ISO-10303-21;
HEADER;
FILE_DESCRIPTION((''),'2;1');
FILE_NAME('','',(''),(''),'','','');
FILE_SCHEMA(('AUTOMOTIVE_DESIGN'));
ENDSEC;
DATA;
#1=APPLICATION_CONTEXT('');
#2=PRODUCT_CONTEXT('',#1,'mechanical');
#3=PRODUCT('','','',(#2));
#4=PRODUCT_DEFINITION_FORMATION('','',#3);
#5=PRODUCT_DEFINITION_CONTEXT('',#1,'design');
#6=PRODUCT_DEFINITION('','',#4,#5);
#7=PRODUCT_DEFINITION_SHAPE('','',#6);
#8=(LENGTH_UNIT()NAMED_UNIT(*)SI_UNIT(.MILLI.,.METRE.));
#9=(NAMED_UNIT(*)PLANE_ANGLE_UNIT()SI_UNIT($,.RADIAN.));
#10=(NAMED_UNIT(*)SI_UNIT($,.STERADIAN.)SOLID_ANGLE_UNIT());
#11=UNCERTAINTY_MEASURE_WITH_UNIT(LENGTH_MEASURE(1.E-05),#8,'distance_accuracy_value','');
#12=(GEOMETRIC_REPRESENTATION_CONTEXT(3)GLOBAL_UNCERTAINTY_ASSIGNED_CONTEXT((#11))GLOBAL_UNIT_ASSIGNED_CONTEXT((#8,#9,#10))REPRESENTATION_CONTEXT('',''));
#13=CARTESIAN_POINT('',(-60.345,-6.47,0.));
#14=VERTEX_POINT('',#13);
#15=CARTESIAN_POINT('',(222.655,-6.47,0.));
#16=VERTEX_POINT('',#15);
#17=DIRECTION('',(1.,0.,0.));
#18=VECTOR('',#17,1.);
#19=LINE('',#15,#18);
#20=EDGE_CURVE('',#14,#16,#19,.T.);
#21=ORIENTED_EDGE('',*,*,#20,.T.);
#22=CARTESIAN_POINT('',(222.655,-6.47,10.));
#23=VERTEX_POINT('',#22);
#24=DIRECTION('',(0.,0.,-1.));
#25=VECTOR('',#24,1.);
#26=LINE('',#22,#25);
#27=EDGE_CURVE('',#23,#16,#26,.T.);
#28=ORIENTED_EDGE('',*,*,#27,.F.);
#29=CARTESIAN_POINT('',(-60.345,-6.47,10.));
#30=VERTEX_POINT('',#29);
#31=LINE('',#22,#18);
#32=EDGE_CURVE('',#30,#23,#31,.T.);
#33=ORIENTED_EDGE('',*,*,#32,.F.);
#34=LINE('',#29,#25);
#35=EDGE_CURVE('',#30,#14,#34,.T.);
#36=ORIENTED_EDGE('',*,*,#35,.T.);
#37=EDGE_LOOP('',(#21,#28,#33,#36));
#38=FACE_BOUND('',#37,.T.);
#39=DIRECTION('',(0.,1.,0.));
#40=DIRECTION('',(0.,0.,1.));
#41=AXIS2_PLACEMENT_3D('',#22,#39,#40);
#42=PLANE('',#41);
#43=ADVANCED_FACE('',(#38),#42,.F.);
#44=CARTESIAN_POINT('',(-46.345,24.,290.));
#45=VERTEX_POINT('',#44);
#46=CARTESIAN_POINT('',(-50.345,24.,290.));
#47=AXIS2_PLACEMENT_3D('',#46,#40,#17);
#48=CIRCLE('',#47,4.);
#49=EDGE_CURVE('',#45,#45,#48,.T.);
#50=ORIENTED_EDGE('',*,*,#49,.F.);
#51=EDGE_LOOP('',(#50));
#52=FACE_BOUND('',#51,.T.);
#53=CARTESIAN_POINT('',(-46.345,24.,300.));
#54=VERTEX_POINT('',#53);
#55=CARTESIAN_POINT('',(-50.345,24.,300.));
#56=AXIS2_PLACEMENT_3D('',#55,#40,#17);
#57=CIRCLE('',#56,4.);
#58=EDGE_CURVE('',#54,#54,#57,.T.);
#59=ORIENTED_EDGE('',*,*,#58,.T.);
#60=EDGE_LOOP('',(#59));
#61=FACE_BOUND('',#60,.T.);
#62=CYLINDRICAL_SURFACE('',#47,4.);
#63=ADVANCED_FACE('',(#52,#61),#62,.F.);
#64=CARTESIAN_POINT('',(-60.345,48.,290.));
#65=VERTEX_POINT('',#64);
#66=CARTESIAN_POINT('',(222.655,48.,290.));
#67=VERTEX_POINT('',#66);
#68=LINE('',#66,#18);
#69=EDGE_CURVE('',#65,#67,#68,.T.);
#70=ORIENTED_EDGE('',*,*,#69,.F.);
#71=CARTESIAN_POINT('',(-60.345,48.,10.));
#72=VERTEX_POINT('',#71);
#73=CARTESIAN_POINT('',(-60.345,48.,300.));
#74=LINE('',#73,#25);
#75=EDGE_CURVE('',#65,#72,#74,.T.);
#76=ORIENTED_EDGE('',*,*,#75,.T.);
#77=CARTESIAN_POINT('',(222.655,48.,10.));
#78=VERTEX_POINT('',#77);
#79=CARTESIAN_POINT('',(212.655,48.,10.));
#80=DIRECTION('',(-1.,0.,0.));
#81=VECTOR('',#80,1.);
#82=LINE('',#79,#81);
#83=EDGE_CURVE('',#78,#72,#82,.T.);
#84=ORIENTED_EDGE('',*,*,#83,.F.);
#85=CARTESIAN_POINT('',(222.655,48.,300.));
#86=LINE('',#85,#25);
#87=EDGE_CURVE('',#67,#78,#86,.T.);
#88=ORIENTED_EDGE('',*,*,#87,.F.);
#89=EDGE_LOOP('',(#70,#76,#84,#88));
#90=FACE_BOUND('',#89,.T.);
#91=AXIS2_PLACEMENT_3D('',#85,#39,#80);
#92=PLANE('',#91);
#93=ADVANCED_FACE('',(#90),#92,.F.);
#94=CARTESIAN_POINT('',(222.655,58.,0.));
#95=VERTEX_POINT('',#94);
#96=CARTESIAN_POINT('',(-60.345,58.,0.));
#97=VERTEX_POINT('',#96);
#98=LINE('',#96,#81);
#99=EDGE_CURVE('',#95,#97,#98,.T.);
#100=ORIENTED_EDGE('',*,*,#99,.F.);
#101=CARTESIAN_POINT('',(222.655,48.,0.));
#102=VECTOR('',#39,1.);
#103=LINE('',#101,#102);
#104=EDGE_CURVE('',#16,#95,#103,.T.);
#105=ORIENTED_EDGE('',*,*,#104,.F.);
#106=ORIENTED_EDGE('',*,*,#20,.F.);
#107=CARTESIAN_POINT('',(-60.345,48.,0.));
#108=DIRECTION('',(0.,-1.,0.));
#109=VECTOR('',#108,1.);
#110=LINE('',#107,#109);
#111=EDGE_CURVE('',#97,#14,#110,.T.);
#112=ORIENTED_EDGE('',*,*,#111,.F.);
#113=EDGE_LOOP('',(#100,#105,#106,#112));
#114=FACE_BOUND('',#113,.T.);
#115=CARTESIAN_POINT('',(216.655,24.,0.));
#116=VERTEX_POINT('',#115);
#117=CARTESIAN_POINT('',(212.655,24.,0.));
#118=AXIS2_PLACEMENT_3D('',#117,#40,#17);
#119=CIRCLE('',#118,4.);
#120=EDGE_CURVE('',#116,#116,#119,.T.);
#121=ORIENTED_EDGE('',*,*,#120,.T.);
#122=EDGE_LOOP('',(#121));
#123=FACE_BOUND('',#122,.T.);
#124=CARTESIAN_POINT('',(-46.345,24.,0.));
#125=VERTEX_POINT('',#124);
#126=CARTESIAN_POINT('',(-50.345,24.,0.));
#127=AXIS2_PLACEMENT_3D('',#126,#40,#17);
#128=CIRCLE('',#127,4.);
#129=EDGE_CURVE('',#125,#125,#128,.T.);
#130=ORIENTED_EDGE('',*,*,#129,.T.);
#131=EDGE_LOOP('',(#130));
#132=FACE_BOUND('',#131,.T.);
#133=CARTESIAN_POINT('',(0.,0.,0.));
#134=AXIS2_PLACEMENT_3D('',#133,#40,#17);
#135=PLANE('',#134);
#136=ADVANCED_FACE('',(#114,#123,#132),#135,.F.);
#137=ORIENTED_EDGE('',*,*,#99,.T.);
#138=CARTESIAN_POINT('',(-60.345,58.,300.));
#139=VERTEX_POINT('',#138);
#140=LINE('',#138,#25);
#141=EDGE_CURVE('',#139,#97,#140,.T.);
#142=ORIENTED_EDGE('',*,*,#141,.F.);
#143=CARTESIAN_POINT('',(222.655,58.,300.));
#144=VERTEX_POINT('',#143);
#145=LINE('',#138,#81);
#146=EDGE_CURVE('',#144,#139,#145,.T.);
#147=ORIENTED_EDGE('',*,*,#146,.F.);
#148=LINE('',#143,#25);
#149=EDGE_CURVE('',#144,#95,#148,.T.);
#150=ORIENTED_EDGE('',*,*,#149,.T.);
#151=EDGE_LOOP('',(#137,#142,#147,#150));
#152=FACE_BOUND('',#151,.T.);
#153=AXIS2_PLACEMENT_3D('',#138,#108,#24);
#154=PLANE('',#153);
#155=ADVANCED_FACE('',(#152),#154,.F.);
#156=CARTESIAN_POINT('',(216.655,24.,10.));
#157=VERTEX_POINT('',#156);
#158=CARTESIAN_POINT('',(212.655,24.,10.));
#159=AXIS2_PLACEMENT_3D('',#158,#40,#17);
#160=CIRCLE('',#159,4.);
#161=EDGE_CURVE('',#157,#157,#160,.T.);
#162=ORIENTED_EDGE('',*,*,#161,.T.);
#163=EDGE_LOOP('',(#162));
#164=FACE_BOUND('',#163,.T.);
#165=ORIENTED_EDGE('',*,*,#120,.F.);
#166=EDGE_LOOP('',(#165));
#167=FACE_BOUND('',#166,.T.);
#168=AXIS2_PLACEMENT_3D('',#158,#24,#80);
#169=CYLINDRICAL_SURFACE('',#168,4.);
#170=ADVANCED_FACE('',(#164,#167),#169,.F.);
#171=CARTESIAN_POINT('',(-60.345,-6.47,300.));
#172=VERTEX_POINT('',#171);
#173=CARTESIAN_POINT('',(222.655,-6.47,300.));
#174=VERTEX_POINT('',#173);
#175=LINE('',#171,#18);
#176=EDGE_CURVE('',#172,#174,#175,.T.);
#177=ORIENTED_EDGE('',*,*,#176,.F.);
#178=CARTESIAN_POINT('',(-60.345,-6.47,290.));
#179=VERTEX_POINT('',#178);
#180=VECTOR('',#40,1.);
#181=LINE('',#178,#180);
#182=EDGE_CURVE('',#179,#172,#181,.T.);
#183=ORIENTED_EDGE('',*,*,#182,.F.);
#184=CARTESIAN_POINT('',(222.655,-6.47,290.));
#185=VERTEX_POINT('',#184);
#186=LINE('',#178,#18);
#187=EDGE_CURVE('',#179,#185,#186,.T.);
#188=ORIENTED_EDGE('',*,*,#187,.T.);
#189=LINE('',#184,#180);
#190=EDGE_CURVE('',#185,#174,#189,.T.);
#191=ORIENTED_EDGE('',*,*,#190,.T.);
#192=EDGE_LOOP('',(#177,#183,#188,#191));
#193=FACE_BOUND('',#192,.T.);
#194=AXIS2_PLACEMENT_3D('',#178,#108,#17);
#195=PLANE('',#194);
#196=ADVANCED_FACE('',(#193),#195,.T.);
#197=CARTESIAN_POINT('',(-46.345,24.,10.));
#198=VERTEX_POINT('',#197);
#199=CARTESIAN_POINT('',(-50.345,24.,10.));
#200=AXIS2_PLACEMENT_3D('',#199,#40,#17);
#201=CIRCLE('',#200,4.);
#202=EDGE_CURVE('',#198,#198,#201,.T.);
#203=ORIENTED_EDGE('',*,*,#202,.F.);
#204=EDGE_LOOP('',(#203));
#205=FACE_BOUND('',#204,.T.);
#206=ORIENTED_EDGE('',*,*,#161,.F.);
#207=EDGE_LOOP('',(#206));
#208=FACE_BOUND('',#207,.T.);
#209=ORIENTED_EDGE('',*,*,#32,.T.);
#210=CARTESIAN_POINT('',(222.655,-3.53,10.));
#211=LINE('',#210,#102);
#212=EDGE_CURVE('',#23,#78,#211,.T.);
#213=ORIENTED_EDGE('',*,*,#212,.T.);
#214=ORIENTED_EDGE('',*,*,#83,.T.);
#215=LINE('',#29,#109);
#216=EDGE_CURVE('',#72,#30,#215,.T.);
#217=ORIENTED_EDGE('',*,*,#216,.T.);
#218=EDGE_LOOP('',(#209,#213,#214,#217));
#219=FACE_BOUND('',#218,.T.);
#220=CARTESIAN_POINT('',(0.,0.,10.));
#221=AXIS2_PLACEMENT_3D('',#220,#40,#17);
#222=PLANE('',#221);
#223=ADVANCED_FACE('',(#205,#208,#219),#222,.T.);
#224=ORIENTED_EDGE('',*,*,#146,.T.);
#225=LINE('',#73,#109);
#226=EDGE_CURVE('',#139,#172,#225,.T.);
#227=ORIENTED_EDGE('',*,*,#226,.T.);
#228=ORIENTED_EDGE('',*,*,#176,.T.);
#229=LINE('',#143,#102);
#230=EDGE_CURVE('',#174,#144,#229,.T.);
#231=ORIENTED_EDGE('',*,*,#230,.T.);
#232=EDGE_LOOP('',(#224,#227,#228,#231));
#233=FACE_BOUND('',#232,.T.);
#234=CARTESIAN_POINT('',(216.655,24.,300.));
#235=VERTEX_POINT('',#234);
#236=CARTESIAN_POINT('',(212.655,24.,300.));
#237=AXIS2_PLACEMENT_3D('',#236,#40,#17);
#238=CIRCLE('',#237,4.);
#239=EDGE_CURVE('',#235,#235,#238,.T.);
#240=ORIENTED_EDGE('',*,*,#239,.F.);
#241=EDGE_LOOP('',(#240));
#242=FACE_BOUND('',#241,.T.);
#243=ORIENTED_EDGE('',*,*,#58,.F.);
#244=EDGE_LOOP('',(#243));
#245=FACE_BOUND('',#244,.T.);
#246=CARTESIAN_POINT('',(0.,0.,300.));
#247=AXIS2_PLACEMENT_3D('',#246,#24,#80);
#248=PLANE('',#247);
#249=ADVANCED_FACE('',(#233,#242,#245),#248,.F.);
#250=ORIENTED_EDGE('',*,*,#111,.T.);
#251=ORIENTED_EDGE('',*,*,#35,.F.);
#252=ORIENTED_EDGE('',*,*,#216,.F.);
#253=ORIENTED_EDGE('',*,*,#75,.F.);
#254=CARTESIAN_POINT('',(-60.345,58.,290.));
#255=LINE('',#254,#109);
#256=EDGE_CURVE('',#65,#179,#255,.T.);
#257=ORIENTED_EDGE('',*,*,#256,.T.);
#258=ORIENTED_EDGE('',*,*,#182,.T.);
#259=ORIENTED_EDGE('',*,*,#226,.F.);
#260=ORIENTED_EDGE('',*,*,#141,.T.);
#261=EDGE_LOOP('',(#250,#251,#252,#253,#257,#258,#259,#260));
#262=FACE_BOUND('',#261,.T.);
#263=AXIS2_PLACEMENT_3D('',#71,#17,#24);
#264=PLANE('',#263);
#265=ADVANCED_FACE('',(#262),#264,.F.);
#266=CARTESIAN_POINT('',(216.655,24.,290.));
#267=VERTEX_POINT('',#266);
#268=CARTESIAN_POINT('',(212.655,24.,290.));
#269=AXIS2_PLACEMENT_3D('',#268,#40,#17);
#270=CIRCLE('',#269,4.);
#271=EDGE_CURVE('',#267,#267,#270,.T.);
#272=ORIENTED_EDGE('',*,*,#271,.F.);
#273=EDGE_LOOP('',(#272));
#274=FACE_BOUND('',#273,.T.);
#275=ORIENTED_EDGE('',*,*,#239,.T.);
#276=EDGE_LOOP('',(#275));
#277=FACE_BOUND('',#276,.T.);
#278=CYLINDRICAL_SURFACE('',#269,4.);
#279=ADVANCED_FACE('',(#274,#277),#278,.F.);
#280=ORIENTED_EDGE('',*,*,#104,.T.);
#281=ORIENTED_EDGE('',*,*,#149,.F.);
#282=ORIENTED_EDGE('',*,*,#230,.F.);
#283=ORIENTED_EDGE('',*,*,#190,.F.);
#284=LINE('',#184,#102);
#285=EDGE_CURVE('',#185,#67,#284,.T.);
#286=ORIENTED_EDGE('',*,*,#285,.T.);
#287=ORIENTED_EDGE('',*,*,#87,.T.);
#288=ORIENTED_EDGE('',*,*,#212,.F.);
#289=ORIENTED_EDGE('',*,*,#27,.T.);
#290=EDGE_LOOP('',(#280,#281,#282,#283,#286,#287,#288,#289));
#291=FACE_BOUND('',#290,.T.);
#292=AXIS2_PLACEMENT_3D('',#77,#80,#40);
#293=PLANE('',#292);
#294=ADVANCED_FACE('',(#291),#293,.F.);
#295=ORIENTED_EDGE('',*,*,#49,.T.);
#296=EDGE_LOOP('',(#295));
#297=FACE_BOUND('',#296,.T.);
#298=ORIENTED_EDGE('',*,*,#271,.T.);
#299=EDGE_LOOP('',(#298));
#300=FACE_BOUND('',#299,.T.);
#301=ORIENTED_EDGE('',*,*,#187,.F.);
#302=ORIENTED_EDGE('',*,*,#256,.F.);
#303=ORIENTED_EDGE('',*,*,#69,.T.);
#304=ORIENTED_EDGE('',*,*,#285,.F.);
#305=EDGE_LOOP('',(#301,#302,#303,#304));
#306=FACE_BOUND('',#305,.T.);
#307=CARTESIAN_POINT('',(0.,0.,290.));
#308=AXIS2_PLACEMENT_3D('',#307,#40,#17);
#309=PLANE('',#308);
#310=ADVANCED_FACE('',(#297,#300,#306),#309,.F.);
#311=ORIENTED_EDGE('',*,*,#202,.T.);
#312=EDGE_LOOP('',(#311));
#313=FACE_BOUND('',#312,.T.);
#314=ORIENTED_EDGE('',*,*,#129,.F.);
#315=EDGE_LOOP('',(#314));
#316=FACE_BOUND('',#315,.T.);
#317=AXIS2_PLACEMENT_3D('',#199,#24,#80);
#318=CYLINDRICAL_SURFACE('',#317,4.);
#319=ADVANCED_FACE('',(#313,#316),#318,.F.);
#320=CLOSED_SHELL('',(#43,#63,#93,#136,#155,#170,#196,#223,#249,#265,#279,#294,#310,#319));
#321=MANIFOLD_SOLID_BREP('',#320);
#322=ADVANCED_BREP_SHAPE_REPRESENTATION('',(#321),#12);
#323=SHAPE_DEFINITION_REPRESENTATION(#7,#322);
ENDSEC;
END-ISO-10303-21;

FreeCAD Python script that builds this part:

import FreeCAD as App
import Part
import Sketcher
Q = App.Units.Quantity

doc = App.newDocument("Part")
params = doc.addObject("Spreadsheet::Sheet", "Params")
for row, (alias, value) in enumerate([
    ("sketch1_diameter", "8 mm"),
    ("sketch1_width", "283 mm"),
    ("sketch1_height", "54.47 mm"),
    ("pad1_length", "10 mm"),
    ("sketch2_width", "283 mm"),
    ("sketch2_height", "10 mm"),
    ("pad2_length", "300 mm"),
    ("sketch3_diameter", "8 mm"),
    ("sketch3_width", "283 mm"),
    ("sketch3_height", "64.47 mm"),
    ("pad3_length", "10 mm"),
], start=1):
    params.set(f"A{row}", alias)
    params.set(f"B{row}", "=" + value)
    params.setAlias(f"B{row}", alias)

body = doc.addObject("PartDesign::Body", "Body")

sketch1 = doc.addObject("Sketcher::SketchObject", "Sketch")
body.addObject(sketch1)
sketch1.AttachmentSupport = (doc.XY_Plane, [""])
sketch1.MapMode = "FlatFace"
sketch1.addGeometry(Part.LineSegment(App.Vector(-60.3, 48, 0), App.Vector(-60.3, -6.5, 0)), False)
sketch1.addGeometry(Part.LineSegment(App.Vector(-60.3, -6.5, 0), App.Vector(222.7, -6.5, 0)), False)
sketch1.addGeometry(Part.LineSegment(App.Vector(222.7, -6.5, 0), App.Vector(222.7, 48, 0)), False)
sketch1.addGeometry(Part.LineSegment(App.Vector(222.7, 48, 0), App.Vector(-60.3, 48, 0)), False)
sketch1.addGeometry(Part.Circle(App.Vector(-50.3, 24, 0), App.Vector(0, 0, 1), 4), False)
sketch1.addGeometry(Part.Circle(App.Vector(212.7, 24, 0), App.Vector(0, 0, 1), 4), False)
sketch1.addConstraint(Sketcher.Constraint("Coincident", 0, 2, 1, 1))
sketch1.addConstraint(Sketcher.Constraint("Coincident", 1, 2, 2, 1))
sketch1.addConstraint(Sketcher.Constraint("Coincident", 2, 2, 3, 1))
sketch1.addConstraint(Sketcher.Constraint("Coincident", 3, 2, 0, 1))
sketch1.addConstraint(Sketcher.Constraint("Vertical", 0))
sketch1.addConstraint(Sketcher.Constraint("Horizontal", 1))
sketch1.addConstraint(Sketcher.Constraint("Vertical", 2))
sketch1.addConstraint(Sketcher.Constraint("Horizontal", 3))
sketch1.addConstraint(Sketcher.Constraint("Equal", 4, 5))
sketch1.addConstraint(Sketcher.Constraint("Horizontal", 4, 3, 5, 3))
sketch1.addConstraint(Sketcher.Constraint("Diameter", 4, Q("8 mm")))
sketch1.addConstraint(Sketcher.Constraint("DistanceX", 1, 1, 1, 2, Q("283 mm")))
sketch1.addConstraint(Sketcher.Constraint("DistanceY", -1, 1, 4, 3, Q("24 mm")))
sketch1.addConstraint(Sketcher.Constraint("DistanceY", -1, 1, 2, 2, Q("48 mm")))
sketch1.addConstraint(Sketcher.Constraint("DistanceX", 4, 3, 5, 3, Q("263 mm")))
sketch1.addConstraint(Sketcher.Constraint("DistanceX", 0, 2, 4, 3, Q("10 mm")))
sketch1.addConstraint(Sketcher.Constraint("DistanceY", 0, 2, 0, 1, Q("54.47 mm")))
sketch1.addConstraint(Sketcher.Constraint("DistanceX", 4, 3, -1, 1, Q("50.345 mm")))
sketch1.setExpression("Constraints[10]", "Params.sketch1_diameter")
sketch1.setExpression("Constraints[11]", "Params.sketch1_width")
sketch1.setExpression("Constraints[16]", "Params.sketch1_height")
pad1 = doc.addObject("PartDesign::Pad", "Pad")
body.addObject(pad1)
pad1.Profile = sketch1
pad1.setExpression("Length", "Params.pad1_length")

sketch2 = doc.addObject("Sketcher::SketchObject", "Sketch001")
body.addObject(sketch2)
sketch2.AttachmentSupport = (doc.XY_Plane, [""])
sketch2.MapMode = "FlatFace"
sketch2.addGeometry(Part.LineSegment(App.Vector(-60, 58, 0), App.Vector(-60, 48, 0)), False)
sketch2.addGeometry(Part.LineSegment(App.Vector(-60, 48, 0), App.Vector(223, 48, 0)), False)
sketch2.addGeometry(Part.LineSegment(App.Vector(223, 48, 0), App.Vector(223, 58, 0)), False)
sketch2.addGeometry(Part.LineSegment(App.Vector(223, 58, 0), App.Vector(-60, 58, 0)), False)
sketch2.addConstraint(Sketcher.Constraint("Coincident", 0, 2, 1, 1))
sketch2.addConstraint(Sketcher.Constraint("Coincident", 1, 2, 2, 1))
sketch2.addConstraint(Sketcher.Constraint("Coincident", 2, 2, 3, 1))
sketch2.addConstraint(Sketcher.Constraint("Coincident", 3, 2, 0, 1))
sketch2.addConstraint(Sketcher.Constraint("Vertical", 0))
sketch2.addConstraint(Sketcher.Constraint("Horizontal", 1))
sketch2.addConstraint(Sketcher.Constraint("Vertical", 2))
sketch2.addConstraint(Sketcher.Constraint("Horizontal", 3))
sketch2.addConstraint(Sketcher.Constraint("DistanceX", 1, 1, 1, 2, Q("283 mm")))
sketch2.addConstraint(Sketcher.Constraint("DistanceY", 0, 2, 0, 1, Q("10 mm")))
sketch2.addConstraint(Sketcher.Constraint("DistanceY", -1, 1, 0, 2, Q("48 mm")))
sketch2.addConstraint(Sketcher.Constraint("DistanceX", 0, 2, -1, 1, Q("60.345 mm")))
sketch2.setExpression("Constraints[8]", "Params.sketch2_width")
sketch2.setExpression("Constraints[9]", "Params.sketch2_height")
pad2 = doc.addObject("PartDesign::Pad", "Pad001")
body.addObject(pad2)
pad2.Profile = sketch2
pad2.setExpression("Length", "Params.pad2_length")

sketch3 = doc.addObject("Sketcher::SketchObject", "Sketch002")
body.addObject(sketch3)
sketch3.AttachmentSupport = (doc.XY_Plane, [""])
sketch3.MapMode = "FlatFace"
sketch3.AttachmentOffset = App.Placement(App.Vector(0, 0, 300), App.Rotation())
sketch3.addGeometry(Part.LineSegment(App.Vector(-60.3, 58, 0), App.Vector(-60.3, -6.5, 0)), False)
sketch3.addGeometry(Part.LineSegment(App.Vector(-60.3, -6.5, 0), App.Vector(222.7, -6.5, 0)), False)
sketch3.addGeometry(Part.LineSegment(App.Vector(222.7, -6.5, 0), App.Vector(222.7, 58, 0)), False)
sketch3.addGeometry(Part.LineSegment(App.Vector(222.7, 58, 0), App.Vector(-60.3, 58, 0)), False)
sketch3.addGeometry(Part.Circle(App.Vector(-50.3, 24, 0), App.Vector(0, 0, 1), 4), False)
sketch3.addGeometry(Part.Circle(App.Vector(212.7, 24, 0), App.Vector(0, 0, 1), 4), False)
sketch3.addConstraint(Sketcher.Constraint("Coincident", 0, 2, 1, 1))
sketch3.addConstraint(Sketcher.Constraint("Coincident", 1, 2, 2, 1))
sketch3.addConstraint(Sketcher.Constraint("Coincident", 2, 2, 3, 1))
sketch3.addConstraint(Sketcher.Constraint("Coincident", 3, 2, 0, 1))
sketch3.addConstraint(Sketcher.Constraint("Vertical", 0))
sketch3.addConstraint(Sketcher.Constraint("Horizontal", 1))
sketch3.addConstraint(Sketcher.Constraint("Vertical", 2))
sketch3.addConstraint(Sketcher.Constraint("Horizontal", 3))
sketch3.addConstraint(Sketcher.Constraint("Equal", 4, 5))
sketch3.addConstraint(Sketcher.Constraint("Horizontal", 4, 3, 5, 3))
sketch3.addConstraint(Sketcher.Constraint("Diameter", 4, Q("8 mm")))
sketch3.addConstraint(Sketcher.Constraint("DistanceX", 1, 1, 1, 2, Q("283 mm")))
sketch3.addConstraint(Sketcher.Constraint("DistanceY", -1, 1, 4, 3, Q("24 mm")))
sketch3.addConstraint(Sketcher.Constraint("DistanceY", -1, 1, 2, 2, Q("58 mm")))
sketch3.addConstraint(Sketcher.Constraint("DistanceX", 4, 3, 5, 3, Q("263 mm")))
sketch3.addConstraint(Sketcher.Constraint("DistanceX", 0, 2, 4, 3, Q("10 mm")))
sketch3.addConstraint(Sketcher.Constraint("DistanceY", 0, 2, 0, 1, Q("64.47 mm")))
sketch3.addConstraint(Sketcher.Constraint("DistanceX", 4, 3, -1, 1, Q("50.345 mm")))
sketch3.setExpression("Constraints[10]", "Params.sketch3_diameter")
sketch3.setExpression("Constraints[11]", "Params.sketch3_width")
sketch3.setExpression("Constraints[16]", "Params.sketch3_height")
pad3 = doc.addObject("PartDesign::Pad", "Pad002")
body.addObject(pad3)
pad3.Profile = sketch3
pad3.setExpression("Length", "Params.pad3_length")
pad3.Reversed = True

doc.recompute()
